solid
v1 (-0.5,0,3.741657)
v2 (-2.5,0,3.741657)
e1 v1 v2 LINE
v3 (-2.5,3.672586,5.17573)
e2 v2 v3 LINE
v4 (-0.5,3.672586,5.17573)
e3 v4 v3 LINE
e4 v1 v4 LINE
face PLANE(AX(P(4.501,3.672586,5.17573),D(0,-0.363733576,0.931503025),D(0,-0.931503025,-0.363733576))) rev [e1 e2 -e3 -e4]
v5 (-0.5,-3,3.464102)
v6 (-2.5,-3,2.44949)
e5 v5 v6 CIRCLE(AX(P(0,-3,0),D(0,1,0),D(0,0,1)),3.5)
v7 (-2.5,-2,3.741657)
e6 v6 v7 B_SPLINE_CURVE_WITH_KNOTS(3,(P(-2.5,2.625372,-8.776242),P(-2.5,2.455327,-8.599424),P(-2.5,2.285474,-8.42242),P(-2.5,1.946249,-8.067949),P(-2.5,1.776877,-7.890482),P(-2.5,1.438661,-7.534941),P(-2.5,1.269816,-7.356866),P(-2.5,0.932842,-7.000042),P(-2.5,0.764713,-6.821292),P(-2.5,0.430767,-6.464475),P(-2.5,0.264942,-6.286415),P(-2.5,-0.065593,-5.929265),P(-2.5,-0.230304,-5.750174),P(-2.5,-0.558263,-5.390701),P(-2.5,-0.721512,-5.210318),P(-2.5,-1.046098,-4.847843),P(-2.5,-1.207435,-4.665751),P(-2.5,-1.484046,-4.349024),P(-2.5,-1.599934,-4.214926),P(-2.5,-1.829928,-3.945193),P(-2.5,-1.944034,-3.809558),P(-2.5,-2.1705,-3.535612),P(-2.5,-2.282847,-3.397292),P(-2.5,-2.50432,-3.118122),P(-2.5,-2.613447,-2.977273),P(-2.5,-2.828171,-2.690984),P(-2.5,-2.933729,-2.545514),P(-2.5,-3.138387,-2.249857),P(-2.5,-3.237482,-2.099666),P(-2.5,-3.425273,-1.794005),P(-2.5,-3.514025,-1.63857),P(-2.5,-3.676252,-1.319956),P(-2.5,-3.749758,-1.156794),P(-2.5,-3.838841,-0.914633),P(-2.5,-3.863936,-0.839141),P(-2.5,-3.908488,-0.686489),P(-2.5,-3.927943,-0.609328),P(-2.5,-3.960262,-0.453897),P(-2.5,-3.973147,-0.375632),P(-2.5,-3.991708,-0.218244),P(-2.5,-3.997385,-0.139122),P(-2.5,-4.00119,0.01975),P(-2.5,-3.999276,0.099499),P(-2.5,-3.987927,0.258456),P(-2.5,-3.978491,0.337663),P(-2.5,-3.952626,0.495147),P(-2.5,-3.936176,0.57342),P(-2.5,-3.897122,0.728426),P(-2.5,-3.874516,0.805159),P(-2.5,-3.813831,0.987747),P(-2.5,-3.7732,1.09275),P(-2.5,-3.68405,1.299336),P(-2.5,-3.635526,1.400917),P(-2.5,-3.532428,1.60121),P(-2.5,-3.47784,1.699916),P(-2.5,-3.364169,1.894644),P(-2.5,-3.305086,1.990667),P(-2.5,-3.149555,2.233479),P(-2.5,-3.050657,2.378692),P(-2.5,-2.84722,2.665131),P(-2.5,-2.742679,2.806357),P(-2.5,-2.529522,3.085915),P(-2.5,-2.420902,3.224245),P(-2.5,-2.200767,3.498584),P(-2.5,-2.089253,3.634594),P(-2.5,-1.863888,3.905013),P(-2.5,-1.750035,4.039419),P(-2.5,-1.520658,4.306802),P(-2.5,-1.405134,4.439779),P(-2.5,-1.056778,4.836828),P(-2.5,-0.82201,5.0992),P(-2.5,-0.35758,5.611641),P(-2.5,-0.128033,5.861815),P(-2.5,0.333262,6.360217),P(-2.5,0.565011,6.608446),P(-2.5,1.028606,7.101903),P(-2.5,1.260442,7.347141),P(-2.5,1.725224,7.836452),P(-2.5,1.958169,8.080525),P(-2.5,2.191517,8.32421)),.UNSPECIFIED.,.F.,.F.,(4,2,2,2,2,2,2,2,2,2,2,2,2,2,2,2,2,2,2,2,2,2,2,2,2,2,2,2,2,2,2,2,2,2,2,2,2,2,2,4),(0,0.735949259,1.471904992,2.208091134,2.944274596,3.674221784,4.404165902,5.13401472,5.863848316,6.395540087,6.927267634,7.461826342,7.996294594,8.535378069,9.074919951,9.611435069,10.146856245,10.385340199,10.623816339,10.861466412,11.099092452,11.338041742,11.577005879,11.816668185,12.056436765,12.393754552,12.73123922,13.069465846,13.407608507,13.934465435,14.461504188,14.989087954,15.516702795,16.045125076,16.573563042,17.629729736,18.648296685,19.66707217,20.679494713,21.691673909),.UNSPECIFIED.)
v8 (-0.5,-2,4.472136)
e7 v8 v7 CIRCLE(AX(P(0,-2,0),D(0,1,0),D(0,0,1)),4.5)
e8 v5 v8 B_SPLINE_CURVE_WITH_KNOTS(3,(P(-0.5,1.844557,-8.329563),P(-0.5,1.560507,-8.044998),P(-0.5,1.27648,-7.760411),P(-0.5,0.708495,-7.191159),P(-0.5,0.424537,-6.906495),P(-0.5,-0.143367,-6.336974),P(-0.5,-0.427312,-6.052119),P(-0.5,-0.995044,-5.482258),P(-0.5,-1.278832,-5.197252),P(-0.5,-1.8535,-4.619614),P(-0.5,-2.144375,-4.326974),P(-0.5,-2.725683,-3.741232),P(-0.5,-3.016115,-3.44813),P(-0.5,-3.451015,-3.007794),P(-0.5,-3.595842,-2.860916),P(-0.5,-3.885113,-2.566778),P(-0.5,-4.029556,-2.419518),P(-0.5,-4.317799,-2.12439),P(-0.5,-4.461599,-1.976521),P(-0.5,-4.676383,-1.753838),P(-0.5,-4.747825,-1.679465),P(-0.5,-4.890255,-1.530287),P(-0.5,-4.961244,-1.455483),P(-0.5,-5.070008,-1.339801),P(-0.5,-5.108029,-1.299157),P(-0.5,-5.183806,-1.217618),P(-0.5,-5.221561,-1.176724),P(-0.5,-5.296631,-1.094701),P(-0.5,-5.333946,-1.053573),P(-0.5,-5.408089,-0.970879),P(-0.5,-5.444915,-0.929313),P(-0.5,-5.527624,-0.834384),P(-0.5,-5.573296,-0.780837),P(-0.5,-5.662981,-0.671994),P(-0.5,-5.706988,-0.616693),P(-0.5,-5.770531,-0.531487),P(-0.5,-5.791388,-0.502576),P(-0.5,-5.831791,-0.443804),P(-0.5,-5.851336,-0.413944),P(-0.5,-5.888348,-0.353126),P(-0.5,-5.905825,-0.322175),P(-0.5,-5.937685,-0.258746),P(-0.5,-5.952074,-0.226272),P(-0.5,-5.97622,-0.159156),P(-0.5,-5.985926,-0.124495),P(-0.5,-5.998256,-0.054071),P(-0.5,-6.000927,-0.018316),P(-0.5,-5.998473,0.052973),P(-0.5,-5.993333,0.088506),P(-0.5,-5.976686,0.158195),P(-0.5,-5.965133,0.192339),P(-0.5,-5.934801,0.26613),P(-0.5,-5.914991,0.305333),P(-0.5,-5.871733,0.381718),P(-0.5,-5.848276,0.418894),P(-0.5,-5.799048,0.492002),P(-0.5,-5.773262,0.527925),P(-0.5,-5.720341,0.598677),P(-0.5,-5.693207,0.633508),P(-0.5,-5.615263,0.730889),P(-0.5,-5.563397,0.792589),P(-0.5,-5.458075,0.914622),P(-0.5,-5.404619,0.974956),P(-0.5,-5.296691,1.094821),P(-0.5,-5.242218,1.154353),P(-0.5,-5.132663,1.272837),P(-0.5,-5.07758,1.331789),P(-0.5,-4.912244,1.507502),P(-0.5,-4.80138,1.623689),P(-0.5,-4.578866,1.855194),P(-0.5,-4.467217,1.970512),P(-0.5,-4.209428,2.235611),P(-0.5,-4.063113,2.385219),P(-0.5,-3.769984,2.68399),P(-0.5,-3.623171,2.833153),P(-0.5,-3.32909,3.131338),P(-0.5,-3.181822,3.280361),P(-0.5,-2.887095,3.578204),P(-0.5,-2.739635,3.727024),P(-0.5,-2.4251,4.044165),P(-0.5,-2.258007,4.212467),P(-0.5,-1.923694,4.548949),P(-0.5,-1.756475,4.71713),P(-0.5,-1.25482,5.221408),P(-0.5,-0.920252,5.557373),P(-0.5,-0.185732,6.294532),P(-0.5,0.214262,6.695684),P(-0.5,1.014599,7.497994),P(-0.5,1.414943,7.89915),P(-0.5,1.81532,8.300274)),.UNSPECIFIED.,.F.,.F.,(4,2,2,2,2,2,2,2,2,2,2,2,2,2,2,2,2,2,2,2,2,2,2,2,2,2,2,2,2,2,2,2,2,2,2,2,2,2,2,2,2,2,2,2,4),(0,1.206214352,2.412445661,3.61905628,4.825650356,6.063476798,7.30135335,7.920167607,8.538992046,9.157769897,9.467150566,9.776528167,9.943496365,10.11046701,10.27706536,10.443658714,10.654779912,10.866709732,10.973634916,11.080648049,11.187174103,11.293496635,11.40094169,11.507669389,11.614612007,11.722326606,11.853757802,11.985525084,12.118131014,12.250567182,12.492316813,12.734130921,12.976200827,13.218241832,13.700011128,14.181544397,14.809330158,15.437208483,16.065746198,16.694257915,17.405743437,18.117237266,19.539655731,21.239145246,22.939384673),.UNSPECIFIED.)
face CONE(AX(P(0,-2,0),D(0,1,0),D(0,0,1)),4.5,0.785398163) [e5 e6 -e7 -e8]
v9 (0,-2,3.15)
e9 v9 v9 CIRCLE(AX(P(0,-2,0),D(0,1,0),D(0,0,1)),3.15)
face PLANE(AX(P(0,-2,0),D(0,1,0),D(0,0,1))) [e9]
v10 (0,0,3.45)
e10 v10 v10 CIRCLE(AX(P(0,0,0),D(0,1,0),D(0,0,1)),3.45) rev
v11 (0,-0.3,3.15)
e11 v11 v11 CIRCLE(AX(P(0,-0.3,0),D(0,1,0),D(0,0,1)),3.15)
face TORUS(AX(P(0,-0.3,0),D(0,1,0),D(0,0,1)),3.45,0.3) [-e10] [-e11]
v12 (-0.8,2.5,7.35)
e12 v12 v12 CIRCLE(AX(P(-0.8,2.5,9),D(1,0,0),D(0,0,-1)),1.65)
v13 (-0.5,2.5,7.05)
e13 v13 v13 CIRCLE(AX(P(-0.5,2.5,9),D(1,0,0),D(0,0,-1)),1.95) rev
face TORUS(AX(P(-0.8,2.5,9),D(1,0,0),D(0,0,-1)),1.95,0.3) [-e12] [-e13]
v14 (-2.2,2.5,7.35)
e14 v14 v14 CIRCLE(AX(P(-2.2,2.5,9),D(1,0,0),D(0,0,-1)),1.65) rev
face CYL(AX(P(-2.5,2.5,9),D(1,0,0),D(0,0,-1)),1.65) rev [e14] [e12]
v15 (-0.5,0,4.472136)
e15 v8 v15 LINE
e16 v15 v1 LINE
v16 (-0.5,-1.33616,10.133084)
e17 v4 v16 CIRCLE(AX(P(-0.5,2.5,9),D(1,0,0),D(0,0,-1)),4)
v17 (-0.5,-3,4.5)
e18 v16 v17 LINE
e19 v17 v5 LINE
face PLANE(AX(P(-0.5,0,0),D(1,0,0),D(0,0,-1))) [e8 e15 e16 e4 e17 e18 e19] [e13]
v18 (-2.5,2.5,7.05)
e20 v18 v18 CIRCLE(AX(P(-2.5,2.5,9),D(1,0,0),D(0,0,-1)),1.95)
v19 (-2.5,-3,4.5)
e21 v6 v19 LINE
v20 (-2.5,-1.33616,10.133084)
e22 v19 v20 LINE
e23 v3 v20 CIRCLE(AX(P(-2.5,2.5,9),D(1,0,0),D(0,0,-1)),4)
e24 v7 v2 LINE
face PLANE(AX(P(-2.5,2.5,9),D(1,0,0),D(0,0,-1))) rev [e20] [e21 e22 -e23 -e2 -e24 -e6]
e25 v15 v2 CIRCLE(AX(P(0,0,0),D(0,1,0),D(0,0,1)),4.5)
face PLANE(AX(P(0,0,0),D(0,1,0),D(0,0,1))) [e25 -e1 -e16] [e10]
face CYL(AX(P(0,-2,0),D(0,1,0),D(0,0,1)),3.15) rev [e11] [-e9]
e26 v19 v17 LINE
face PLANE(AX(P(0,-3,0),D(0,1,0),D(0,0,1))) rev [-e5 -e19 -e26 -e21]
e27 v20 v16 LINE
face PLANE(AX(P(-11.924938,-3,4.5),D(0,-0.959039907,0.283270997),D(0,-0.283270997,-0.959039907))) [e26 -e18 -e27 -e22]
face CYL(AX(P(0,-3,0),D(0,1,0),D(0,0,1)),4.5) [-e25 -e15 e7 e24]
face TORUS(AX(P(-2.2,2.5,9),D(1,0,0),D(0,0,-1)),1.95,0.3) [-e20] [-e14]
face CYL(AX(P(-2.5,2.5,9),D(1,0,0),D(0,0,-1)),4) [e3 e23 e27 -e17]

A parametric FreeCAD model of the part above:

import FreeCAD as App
import Part
import Sketcher
from FreeCAD import Vector
Q = App.Units.Quantity


def edges_at(feature, points):
    """Names of the edges that pass closest to the given points."""
    edges = feature.Shape.Edges
    near = lambda p: min(range(len(edges)), key=lambda i: edges[i].distToShape(Part.Vertex(*p))[0])
    return sorted({f"Edge{near(p) + 1}" for p in points})


def add_polygon(sketch, points):
    """Adds a closed chain of lines whose ends are joined by coincident constraints."""
    first, n = sketch.GeometryCount, len(points)
    for a, b in zip(points, points[1:] + points[:1]):
        sketch.addGeometry(Part.LineSegment(App.Vector(*a, 0), App.Vector(*b, 0)), False)
    for i in range(n):
        sketch.addConstraint(Sketcher.Constraint("Coincident", first + i, 2, first + (i + 1) % n, 1))

doc = App.newDocument("Part")
body = doc.addObject("PartDesign::Body", "Body")

sketch1 = body.newObject("Sketcher::SketchObject", "Sketch")
sketch1.AttachmentSupport = (doc.getObject("XZ_Plane"), [""])
sketch1.MapMode = "FlatFace"
sketch1.addGeometry(Part.Circle(Vector(0, 0, 0), Vector(0, 0, 1), 4.5), False)
sketch1.addConstraint([
    Sketcher.Constraint("Coincident", 0, 3, -1, 1),
    Sketcher.Constraint("Diameter", 0, Q("9 mm")),
])
pad1 = body.newObject("PartDesign::Pad", "Pad")
pad1.Profile = sketch1
pad1.Length = 3

sketch2 = body.newObject("Sketcher::SketchObject", "Sketch001")
sketch2.AttachmentSupport = (doc.getObject("XZ_Plane"), [""])
sketch2.MapMode = "FlatFace"
sketch2.addGeometry(Part.Circle(Vector(0, 0, 0), Vector(0, 0, 1), 3.1), False)
sketch2.addConstraint([
    Sketcher.Constraint("Coincident", 0, 3, -1, 1),
    Sketcher.Constraint("Diameter", 0, Q("6.3 mm")),
])
pocket1 = body.newObject("PartDesign::Pocket", "Pocket")
pocket1.Profile = sketch2
pocket1.Length = 2
pocket1.Reversed = True

sketch3 = body.newObject("Sketcher::SketchObject", "Sketch002")
sketch3.AttachmentSupport = (doc.getObject("YZ_Plane"), [""])
sketch3.MapMode = "FlatFace"
add_polygon(sketch3, [(-3, -4.5), (-2, -4.5), (-3, -3.5)])
sketch3.addConstraint([
    Sketcher.Constraint("Horizontal", 0),
    Sketcher.Constraint("Vertical", 2),
    Sketcher.Constraint("Equal", 0, 2),
    Sketcher.Constraint("DistanceX", 0, 1, 0, 2, Q("1 mm")),
    Sketcher.Constraint("DistanceX", 0, 2, -1, 1, Q("2 mm")),
    Sketcher.Constraint("DistanceY", 0, 2, -1, 1, Q("4.5 mm")),
])
groove = body.newObject("PartDesign::Groove", "Groove")
groove.Profile = sketch3
groove.ReferenceAxis = (sketch3, ["H_Axis"])
groove.Angle = 360
body2 = doc.addObject("PartDesign::Body", "Body001")

sketch4 = body2.newObject("Sketcher::SketchObject", "Sketch003")
sketch4.AttachmentSupport = (doc.getObject("YZ_Plane001"), [""])
sketch4.MapMode = "FlatFace"
sketch4.AttachmentOffset = App.Placement(Vector(0, 0, -0.5), App.Rotation())
sketch4.addGeometry(Part.Circle(Vector(2.5, 9, 0), Vector(0, 0, 1), 4), False)
sketch4.addConstraint([
    Sketcher.Constraint("Diameter", 0, Q("8 mm")),
    Sketcher.Constraint("DistanceY", -1, 1, 0, 3, Q("9 mm")),
    Sketcher.Constraint("DistanceX", -1, 1, 0, 3, Q("2.5 mm")),
])
pad2 = body2.newObject("PartDesign::Pad", "Pad001")
pad2.Profile = sketch4
pad2.Length = 2
pad2.Reversed = True
body.AllowCompound = True
doc.recompute()

boolean = body.newObject("PartDesign::Boolean", "Boolean")
boolean.Type = "Fuse"
boolean.addObjects([body2])

sketch5 = body.newObject("Sketcher::SketchObject", "Sketch004")
sketch5.AttachmentSupport = (doc.getObject("YZ_Plane"), [""])
sketch5.MapMode = "FlatFace"
sketch5.AttachmentOffset = App.Placement(Vector(0, 0, -0.5), App.Rotation())
add_polygon(sketch5, [(-1.3, 10.1), (-3, 4.5), (-3, 3.5), (0, 3.5), (3.7, 5.2)])
sketch5.addConstraint([
    Sketcher.Constraint("Vertical", 1),
    Sketcher.Constraint("Horizontal", 2),
    Sketcher.Constraint("PointOnObject", 2, 2, -2),
    Sketcher.Constraint("DistanceX", 2, 1, 2, 2, Q("3 mm")),
    Sketcher.Constraint("DistanceY", 1, 2, 1, 1, Q("1 mm")),
    Sketcher.Constraint("DistanceY", -1, 1, 0, 2, Q("4.5 mm")),
    Sketcher.Constraint("Distance", 0, Q("5.87367 mm")),
    Sketcher.Constraint("DistanceY", -1, 1, 3, 2, Q("5.152908 mm")),
    Sketcher.Constraint("DistanceX", 4, 2, -1, 1, Q("1.33616 mm")),
    Sketcher.Constraint("Distance", 3, Q("4.048443 mm")),
])
pad3 = body.newObject("PartDesign::Pad", "Pad002")
pad3.Profile = sketch5
pad3.Length = 2
pad3.Reversed = True

sketch6 = body.newObject("Sketcher::SketchObject", "Sketch005")
sketch6.AttachmentSupport = (doc.getObject("XY_Plane"), [""])
sketch6.MapMode = "FlatFace"
sketch6.AttachmentOffset = App.Placement(Vector(0, 0, 3.5), App.Rotation())
add_polygon(sketch6, [(-2.5, -3), (-2.5, -2.199), (-0.5, -2.956), (-0.5, -3)])
sketch6.addConstraint([
    Sketcher.Constraint("Vertical", 0),
    Sketcher.Constraint("Vertical", 2),
    Sketcher.Constraint("Horizontal", 3),
    Sketcher.Constraint("DistanceX", 3, 2, 3, 1, Q("2 mm")),
    Sketcher.Constraint("DistanceY", 2, 2, -1, 1, Q("3 mm")),
    Sketcher.Constraint("DistanceX", 0, 2, -1, 1, Q("2.5 mm")),
    Sketcher.Constraint("DistanceY", 0, 1, 0, 2, Q("0.801163 mm")),
    Sketcher.Constraint("DistanceY", 2, 2, 2, 1, Q("0.044283 mm")),
])
pad4 = body.newObject("PartDesign::Pad", "Pad003")
pad4.Profile = sketch6
pad4.Length = 1.05051
pad4.Reversed = True

sketch7 = body.newObject("Sketcher::SketchObject", "Sketch006")
sketch7.AttachmentSupport = (doc.getObject("YZ_Plane"), [""])
sketch7.MapMode = "FlatFace"
sketch7.AttachmentOffset = App.Placement(Vector(0, 0, -0.5), App.Rotation())
sketch7.addGeometry(Part.Circle(Vector(2.5, 9, 0), Vector(0, 0, 1), 1.6), False)
sketch7.addConstraint([
    Sketcher.Constraint("Diameter", 0, Q("3.3 mm")),
    Sketcher.Constraint("DistanceY", -1, 1, 0, 3, Q("9 mm")),
    Sketcher.Constraint("DistanceX", -1, 1, 0, 3, Q("2.5 mm")),
])
pocket2 = body.newObject("PartDesign::Pocket", "Pocket001")
pocket2.Profile = sketch7
pocket2.Length = 2

sketch8 = body.newObject("Sketcher::SketchObject", "Sketch007")
sketch8.AttachmentSupport = (doc.getObject("YZ_Plane"), [""])
sketch8.MapMode = "FlatFace"
sketch8.AttachmentOffset = App.Placement(Vector(0, 0, -2.5), App.Rotation())
add_polygon(sketch8, [(0, 3.5), (0, 3.742), (3.673, 5.176), (3.696, 5.153)])
sketch8.addConstraint([
    Sketcher.Constraint("Vertical", 0),
    Sketcher.Constraint("PointOnObject", 0, 2, -2),
    Sketcher.Constraint("DistanceY", -1, 1, 3, 2, Q("3.5 mm")),
    Sketcher.Constraint("DistanceY", 0, 1, 0, 2, Q("0.241657 mm")),
    Sketcher.Constraint("DistanceY", -1, 1, 1, 2, Q("5.17573 mm")),
    Sketcher.Constraint("DistanceY", -1, 1, 2, 2, Q("5.152908 mm")),
    Sketcher.Constraint("DistanceX", 1, 2, 2, 2, Q("0.023058 mm")),
    Sketcher.Constraint("Distance", 1, Q("3.942645 mm")),
])
pocket3 = body.newObject("PartDesign::Pocket", "Pocket002")
pocket3.Profile = sketch8
pocket3.Type = "UpToFirst"
pocket3.Reversed = True
doc.recompute()

fillet = body.newObject("PartDesign::Fillet", "Fillet")
fillet.Base = (pocket3, edges_at(pocket3, [(-3.15, 0, 0)]))
fillet.Radius = 0.3
doc.recompute()

fillet2 = body.newObject("PartDesign::Fillet", "Fillet001")
fillet2.Base = (fillet, edges_at(fillet, [(-0.5, 2.5, 10.65)]))
fillet2.Radius = 0.3
doc.recompute()

fillet3 = body.newObject("PartDesign::Fillet", "Fillet002")
fillet3.Base = (fillet2, edges_at(fillet2, [(-2.5, 2.5, 10.65)]))
fillet3.Radius = 0.3

doc.recompute()
